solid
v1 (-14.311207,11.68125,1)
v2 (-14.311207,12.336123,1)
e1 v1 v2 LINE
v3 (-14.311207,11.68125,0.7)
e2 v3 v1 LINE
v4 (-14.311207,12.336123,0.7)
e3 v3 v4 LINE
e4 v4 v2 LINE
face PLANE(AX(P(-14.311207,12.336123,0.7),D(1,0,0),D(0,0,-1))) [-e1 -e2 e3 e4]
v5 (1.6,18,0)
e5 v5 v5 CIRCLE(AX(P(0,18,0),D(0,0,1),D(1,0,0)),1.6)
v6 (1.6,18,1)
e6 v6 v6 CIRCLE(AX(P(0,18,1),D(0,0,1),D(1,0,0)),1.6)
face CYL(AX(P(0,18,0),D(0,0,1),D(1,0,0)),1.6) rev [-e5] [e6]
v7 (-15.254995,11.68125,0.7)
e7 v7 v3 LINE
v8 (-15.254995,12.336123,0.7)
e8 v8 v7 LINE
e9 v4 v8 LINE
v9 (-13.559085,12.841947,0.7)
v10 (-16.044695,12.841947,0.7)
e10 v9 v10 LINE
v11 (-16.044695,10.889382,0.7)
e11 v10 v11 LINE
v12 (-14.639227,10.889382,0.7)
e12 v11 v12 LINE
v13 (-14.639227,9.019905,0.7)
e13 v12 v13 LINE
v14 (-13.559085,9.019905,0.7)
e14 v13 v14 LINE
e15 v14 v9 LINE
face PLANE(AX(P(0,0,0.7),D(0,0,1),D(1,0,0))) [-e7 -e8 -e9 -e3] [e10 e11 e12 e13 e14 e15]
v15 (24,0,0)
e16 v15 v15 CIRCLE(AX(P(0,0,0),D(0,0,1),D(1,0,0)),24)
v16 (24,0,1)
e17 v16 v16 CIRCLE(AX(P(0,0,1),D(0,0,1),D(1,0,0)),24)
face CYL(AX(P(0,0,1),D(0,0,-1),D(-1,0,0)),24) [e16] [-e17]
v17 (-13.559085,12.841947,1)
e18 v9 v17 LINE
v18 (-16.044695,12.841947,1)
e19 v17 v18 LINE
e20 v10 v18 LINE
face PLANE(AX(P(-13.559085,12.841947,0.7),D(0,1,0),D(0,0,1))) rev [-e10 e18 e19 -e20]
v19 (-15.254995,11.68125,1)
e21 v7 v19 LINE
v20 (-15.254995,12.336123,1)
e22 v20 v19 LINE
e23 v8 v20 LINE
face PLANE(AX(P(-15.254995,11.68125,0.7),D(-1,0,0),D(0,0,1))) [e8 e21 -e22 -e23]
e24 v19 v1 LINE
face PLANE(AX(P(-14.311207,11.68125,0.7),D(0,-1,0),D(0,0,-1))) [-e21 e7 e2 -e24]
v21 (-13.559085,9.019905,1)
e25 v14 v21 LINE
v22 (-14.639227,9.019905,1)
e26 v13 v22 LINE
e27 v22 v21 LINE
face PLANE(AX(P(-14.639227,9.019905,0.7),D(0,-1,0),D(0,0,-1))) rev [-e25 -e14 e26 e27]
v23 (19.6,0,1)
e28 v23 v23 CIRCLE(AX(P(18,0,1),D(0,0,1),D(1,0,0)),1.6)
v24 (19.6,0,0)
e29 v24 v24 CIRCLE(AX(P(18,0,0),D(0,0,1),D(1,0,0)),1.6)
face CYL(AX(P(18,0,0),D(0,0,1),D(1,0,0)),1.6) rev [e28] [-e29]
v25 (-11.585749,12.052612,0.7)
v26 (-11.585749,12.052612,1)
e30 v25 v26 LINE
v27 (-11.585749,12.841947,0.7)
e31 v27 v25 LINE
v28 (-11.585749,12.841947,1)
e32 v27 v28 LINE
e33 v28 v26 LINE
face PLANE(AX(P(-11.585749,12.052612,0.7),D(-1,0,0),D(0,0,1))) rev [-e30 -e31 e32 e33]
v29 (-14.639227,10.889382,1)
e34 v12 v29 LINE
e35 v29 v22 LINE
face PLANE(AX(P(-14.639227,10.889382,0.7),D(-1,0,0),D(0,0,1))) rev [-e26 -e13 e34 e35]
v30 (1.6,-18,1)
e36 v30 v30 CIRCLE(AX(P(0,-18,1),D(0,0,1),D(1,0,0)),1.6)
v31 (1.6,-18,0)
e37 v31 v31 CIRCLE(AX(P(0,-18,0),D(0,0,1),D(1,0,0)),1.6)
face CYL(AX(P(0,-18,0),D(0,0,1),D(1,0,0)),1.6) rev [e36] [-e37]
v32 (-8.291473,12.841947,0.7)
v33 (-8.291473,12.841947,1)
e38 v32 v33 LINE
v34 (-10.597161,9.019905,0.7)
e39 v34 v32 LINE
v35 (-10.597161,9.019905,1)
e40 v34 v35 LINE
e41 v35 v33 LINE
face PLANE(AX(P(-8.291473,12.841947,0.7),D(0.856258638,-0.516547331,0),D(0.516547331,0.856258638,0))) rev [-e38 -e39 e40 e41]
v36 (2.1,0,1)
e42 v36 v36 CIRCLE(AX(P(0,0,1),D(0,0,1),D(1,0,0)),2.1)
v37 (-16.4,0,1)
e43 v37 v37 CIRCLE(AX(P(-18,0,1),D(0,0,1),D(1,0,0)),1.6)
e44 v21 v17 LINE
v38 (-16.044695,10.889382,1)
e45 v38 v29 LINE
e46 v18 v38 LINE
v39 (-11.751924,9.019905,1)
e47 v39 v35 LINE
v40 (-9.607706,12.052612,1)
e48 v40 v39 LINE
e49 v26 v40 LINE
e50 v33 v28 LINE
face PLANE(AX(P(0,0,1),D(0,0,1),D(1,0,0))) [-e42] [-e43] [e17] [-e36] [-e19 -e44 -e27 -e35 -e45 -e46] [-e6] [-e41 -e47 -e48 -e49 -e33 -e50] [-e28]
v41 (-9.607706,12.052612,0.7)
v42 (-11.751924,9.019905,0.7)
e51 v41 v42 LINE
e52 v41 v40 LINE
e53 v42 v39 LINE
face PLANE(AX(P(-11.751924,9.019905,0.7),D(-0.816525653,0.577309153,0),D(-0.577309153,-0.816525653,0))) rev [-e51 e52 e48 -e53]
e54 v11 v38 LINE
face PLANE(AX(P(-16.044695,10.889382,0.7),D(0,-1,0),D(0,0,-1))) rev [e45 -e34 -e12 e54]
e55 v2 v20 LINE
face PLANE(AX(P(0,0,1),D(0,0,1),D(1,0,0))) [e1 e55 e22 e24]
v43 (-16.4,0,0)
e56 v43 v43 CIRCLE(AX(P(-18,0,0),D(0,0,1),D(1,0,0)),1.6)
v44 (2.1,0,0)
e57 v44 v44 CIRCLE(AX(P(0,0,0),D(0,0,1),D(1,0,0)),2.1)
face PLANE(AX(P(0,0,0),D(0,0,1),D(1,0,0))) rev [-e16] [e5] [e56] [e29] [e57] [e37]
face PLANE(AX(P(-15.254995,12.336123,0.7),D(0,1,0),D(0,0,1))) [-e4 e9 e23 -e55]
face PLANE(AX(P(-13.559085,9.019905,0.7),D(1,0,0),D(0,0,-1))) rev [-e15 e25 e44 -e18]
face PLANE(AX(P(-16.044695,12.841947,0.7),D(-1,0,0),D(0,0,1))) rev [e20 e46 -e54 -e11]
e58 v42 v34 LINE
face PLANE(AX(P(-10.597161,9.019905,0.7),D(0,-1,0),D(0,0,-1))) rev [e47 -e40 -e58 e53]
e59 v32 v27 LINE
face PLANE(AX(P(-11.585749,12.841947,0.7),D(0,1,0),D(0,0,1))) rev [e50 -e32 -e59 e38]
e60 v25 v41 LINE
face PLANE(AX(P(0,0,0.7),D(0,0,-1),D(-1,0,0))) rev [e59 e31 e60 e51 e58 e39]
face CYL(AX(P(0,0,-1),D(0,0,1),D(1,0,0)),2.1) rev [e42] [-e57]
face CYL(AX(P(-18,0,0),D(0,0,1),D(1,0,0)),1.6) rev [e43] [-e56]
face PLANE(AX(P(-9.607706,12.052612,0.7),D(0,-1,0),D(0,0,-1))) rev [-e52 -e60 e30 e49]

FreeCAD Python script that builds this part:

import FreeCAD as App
import Part
import Sketcher

doc = App.newDocument("Part")
body = doc.addObject("PartDesign::Body", "Body")

# Sketch on XY plane
sketch1 = doc.addObject("Sketcher::SketchObject", "Sketch")
body.addObject(sketch1)
sketch1.AttachmentSupport = (doc.XY_Plane, [""])
sketch1.MapMode = "FlatFace"
sketch1.addGeometry(Part.Circle(App.Vector(0, 0, 0), App.Vector(0, 0, 1), 24), False)
sketch1.addConstraint([
    Sketcher.Constraint("Coincident", 0, 3, -1, 1),
    Sketcher.Constraint("Diameter", 0, 48.0),
])
pad1 = doc.addObject("PartDesign::Pad", "Pad")
body.addObject(pad1)
pad1.Profile = sketch1
pad1.Length = 1

# Sketch on XY plane
sketch2 = doc.addObject("Sketcher::SketchObject", "Sketch001")
body.addObject(sketch2)
sketch2.AttachmentSupport = (doc.XY_Plane, [""])
sketch2.MapMode = "FlatFace"
sketch2.AttachmentOffset = App.Placement(App.Vector(0, 0, 1), App.Rotation())
sketch2.addGeometry(Part.Circle(App.Vector(0, 0, 0), App.Vector(0, 0, 1), 2.1), False)
sketch2.addConstraint([
    Sketcher.Constraint("Coincident", 0, 3, -1, 1),
    Sketcher.Constraint("Diameter", 0, 4.2),
])
pocket1 = doc.addObject("PartDesign::Pocket", "Pocket")
body.addObject(pocket1)
pocket1.Profile = sketch2
pocket1.Length = 2

# Sketch on XY plane
sketch3 = doc.addObject("Sketcher::SketchObject", "Sketch002")
body.addObject(sketch3)
sketch3.AttachmentSupport = (doc.XY_Plane, [""])
sketch3.MapMode = "FlatFace"
sketch3.AttachmentOffset = App.Placement(App.Vector(0, 0, 1), App.Rotation())
sketch3.addGeometry([
    Part.Circle(App.Vector(-18, 0, 0), App.Vector(0, 0, 1), 1.6),
    Part.Circle(App.Vector(0, 18, 0), App.Vector(0, 0, 1), 1.6),
    Part.Circle(App.Vector(18, 0, 0), App.Vector(0, 0, 1), 1.6),
    Part.Circle(App.Vector(0, -18, 0), App.Vector(0, 0, 1), 1.6),
], False)
sketch3.addConstraint([
    Sketcher.Constraint("Equal", 0, 1),
    Sketcher.Constraint("Equal", 1, 2),
    Sketcher.Constraint("Equal", 2, 3),
    Sketcher.Constraint("Symmetric", 0, 3, 2, 3, -1, 1),
    Sketcher.Constraint("Symmetric", 1, 3, 3, 3, -1, 1),
    Sketcher.Constraint("PointOnObject", 0, 3, -1),
    Sketcher.Constraint("PointOnObject", 1, 3, -2),
    Sketcher.Constraint("Diameter", 0, 3.2),
    Sketcher.Constraint("DistanceX", 0, 3, -1, 1, 18.0),
    Sketcher.Constraint("DistanceY", -1, 1, 1, 3, 18.0),
])
pocket2 = doc.addObject("PartDesign::Pocket", "Pocket001")
body.addObject(pocket2)
pocket2.Profile = sketch3
pocket2.Type = "ThroughAll"

# Sketch on XY plane
sketch4 = doc.addObject("Sketcher::SketchObject", "Sketch003")
body.addObject(sketch4)
sketch4.AttachmentSupport = (doc.XY_Plane, [""])
sketch4.MapMode = "FlatFace"
sketch4.AttachmentOffset = App.Placement(App.Vector(0, 0, 1), App.Rotation())
sketch4.addGeometry([
    Part.LineSegment(App.Vector(-8.3, 12.8, 0), App.Vector(-11.6, 12.8, 0)),  # 0
    Part.LineSegment(App.Vector(-11.6, 12.8, 0), App.Vector(-11.6, 12.1, 0)),  # 1
    Part.LineSegment(App.Vector(-11.6, 12.1, 0), App.Vector(-9.6, 12.1, 0)),  # 2
    Part.LineSegment(App.Vector(-9.6, 12.1, 0), App.Vector(-11.8, 9, 0)),  # 3
    Part.LineSegment(App.Vector(-11.8, 9, 0), App.Vector(-10.6, 9, 0)),  # 4
    Part.LineSegment(App.Vector(-10.6, 9, 0), App.Vector(-8.3, 12.8, 0)),  # 5
    Part.LineSegment(App.Vector(-13.6, 12.8, 0), App.Vector(-16, 12.8, 0)),  # 6
    Part.LineSegment(App.Vector(-16, 12.8, 0), App.Vector(-16, 10.9, 0)),  # 7
    Part.LineSegment(App.Vector(-16, 10.9, 0), App.Vector(-14.6, 10.9, 0)),  # 8
    Part.LineSegment(App.Vector(-14.6, 10.9, 0), App.Vector(-14.6, 9, 0)),  # 9
    Part.LineSegment(App.Vector(-14.6, 9, 0), App.Vector(-13.6, 9, 0)),  # 10
    Part.LineSegment(App.Vector(-13.6, 9, 0), App.Vector(-13.6, 12.8, 0)),  # 11
    Part.LineSegment(App.Vector(-14.3, 11.7, 0), App.Vector(-15.3, 11.7, 0)),  # 12
    Part.LineSegment(App.Vector(-15.3, 11.7, 0), App.Vector(-15.3, 12.3, 0)),  # 13
    Part.LineSegment(App.Vector(-15.3, 12.3, 0), App.Vector(-14.3, 12.3, 0)),  # 14
    Part.LineSegment(App.Vector(-14.3, 12.3, 0), App.Vector(-14.3, 11.7, 0)),  # 15
], False)
sketch4.addConstraint([
    Sketcher.Constraint("Coincident", 0, 2, 1, 1),
    Sketcher.Constraint("Coincident", 1, 2, 2, 1),
    Sketcher.Constraint("Coincident", 2, 2, 3, 1),
    Sketcher.Constraint("Coincident", 3, 2, 4, 1),
    Sketcher.Constraint("Coincident", 4, 2, 5, 1),
    Sketcher.Constraint("Coincident", 5, 2, 0, 1),
    Sketcher.Constraint("Coincident", 6, 2, 7, 1),
    Sketcher.Constraint("Coincident", 7, 2, 8, 1),
    Sketcher.Constraint("Coincident", 8, 2, 9, 1),
    Sketcher.Constraint("Coincident", 9, 2, 10, 1),
    Sketcher.Constraint("Coincident", 10, 2, 11, 1),
    Sketcher.Constraint("Coincident", 11, 2, 6, 1),
    Sketcher.Constraint("Coincident", 12, 2, 13, 1),
    Sketcher.Constraint("Coincident", 13, 2, 14, 1),
    Sketcher.Constraint("Coincident", 14, 2, 15, 1),
    Sketcher.Constraint("Coincident", 15, 2, 12, 1),
    Sketcher.Constraint("Horizontal", 0),
    Sketcher.Constraint("Vertical", 1),
    Sketcher.Constraint("Horizontal", 2),
    Sketcher.Constraint("Horizontal", 4),
    Sketcher.Constraint("Horizontal", 6),
    Sketcher.Constraint("Vertical", 7),
    Sketcher.Constraint("Horizontal", 8),
    Sketcher.Constraint("Vertical", 9),
    Sketcher.Constraint("Horizontal", 10),
    Sketcher.Constraint("Vertical", 11),
    Sketcher.Constraint("Horizontal", 12),
    Sketcher.Constraint("Vertical", 13),
    Sketcher.Constraint("Horizontal", 14),
    Sketcher.Constraint("Vertical", 15),
    Sketcher.Constraint("Horizontal", 5, 2, 6, 2),
    Sketcher.Constraint("Horizontal", 4, 2, 9, 2),
    Sketcher.Constraint("DistanceX", 6, 2, 6, 1, 2.485611),
    Sketcher.Constraint("DistanceX", 8, 1, 8, 2, 1.405468),
    Sketcher.Constraint("DistanceX", 12, 2, 12, 1, 0.943788),
    Sketcher.Constraint("DistanceY", 11, 1, 11, 2, 3.822041),
    Sketcher.Constraint("DistanceX", 7, 2, 12, 2, 0.7897),
    Sketcher.Constraint("Distance", 3, 3.714159),
    Sketcher.Constraint("DistanceX", 0, 2, 0, 1, 3.294275),
    Sketcher.Constraint("DistanceX", 2, 1, 2, 2, 1.978043),
    Sketcher.Constraint("DistanceX", 4, 1, 4, 2, 1.154763),
    Sketcher.Constraint("DistanceY", 1, 2, 1, 1, 0.789335),
    Sketcher.Constraint("DistanceY", 7, 2, 7, 1, 1.952564),
    Sketcher.Constraint("DistanceY", 13, 1, 13, 2, 0.654873),
    Sketcher.Constraint("DistanceX", 0, 2, -1, 1, 11.585749),
    Sketcher.Constraint("DistanceY", -1, 1, 1, 2, 12.052612),
    Sketcher.Constraint("DistanceY", -1, 1, 12, 2, 11.68125),
    Sketcher.Constraint("DistanceX", 6, 2, 3, 2, 4.292771),
])
pocket3 = doc.addObject("PartDesign::Pocket", "Pocket002")
body.addObject(pocket3)
pocket3.Profile = sketch4
pocket3.Length = 0.3

doc.recompute()
